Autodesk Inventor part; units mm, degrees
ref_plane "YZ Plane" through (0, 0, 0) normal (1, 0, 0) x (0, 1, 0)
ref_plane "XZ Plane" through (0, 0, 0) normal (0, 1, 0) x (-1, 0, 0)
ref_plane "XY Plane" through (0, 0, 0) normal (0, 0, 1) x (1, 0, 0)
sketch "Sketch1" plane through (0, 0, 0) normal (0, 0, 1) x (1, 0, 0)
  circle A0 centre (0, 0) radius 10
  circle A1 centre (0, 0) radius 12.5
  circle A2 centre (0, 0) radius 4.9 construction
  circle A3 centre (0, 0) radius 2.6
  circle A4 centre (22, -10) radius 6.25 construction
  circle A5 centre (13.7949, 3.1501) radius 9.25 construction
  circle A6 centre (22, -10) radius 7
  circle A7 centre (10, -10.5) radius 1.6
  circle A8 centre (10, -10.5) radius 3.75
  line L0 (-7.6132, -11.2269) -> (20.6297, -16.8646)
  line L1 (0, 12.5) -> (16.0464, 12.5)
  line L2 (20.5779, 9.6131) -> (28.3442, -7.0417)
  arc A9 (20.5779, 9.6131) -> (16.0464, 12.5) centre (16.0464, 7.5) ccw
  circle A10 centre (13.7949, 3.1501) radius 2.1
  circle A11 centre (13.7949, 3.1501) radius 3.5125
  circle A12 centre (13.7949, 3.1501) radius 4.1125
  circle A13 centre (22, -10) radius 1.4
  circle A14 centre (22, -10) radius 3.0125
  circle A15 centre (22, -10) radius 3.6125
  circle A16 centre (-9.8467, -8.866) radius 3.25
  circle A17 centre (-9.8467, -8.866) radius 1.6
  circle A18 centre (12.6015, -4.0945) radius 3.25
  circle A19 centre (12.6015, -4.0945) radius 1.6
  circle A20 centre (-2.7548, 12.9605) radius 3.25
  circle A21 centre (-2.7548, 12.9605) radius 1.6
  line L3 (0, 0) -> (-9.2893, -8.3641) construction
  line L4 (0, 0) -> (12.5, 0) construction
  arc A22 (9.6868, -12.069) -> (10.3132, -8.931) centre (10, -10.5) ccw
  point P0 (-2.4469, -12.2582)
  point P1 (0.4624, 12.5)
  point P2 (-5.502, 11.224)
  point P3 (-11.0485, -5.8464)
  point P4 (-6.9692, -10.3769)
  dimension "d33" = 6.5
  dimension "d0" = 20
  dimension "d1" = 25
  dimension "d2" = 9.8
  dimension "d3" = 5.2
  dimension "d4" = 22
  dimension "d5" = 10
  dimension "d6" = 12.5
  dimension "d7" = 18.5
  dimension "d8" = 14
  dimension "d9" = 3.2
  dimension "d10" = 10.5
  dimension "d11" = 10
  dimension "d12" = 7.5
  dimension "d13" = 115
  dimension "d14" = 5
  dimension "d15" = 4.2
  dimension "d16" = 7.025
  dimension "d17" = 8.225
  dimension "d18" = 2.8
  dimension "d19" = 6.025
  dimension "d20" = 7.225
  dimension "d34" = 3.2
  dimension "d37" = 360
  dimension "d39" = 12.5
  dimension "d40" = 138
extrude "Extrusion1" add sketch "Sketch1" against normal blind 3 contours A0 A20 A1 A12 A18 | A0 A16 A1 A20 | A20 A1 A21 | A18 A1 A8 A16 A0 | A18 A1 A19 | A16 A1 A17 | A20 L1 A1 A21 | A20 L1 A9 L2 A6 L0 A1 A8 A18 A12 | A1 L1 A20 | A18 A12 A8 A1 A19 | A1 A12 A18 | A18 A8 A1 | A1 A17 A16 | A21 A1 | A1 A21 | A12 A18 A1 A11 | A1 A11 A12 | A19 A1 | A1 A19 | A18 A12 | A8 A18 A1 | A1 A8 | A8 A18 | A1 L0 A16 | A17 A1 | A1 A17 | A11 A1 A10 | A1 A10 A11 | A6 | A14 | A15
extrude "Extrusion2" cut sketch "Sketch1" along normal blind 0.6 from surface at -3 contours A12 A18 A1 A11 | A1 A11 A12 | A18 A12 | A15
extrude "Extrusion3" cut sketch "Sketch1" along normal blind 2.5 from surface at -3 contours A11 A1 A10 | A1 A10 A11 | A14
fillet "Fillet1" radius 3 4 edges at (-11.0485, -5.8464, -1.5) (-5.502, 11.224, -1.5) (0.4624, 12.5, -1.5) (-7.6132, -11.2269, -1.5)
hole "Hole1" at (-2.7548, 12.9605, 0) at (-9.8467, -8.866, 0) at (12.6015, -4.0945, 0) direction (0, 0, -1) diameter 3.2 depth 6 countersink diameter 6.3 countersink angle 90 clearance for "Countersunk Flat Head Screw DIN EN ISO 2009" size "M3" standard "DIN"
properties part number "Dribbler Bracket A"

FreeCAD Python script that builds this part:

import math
import FreeCAD as App
import Part
import Sketcher
from FreeCAD import Vector
Q = App.Units.Quantity


def edges_at(feature, points):
    """Names of the edges that pass closest to the given points."""
    edges = feature.Shape.Edges
    near = lambda p: min(range(len(edges)), key=lambda i: edges[i].distToShape(Part.Vertex(*p))[0])
    return sorted({f"Edge{near(p) + 1}" for p in points})

doc = App.newDocument("Part")
body = doc.addObject("PartDesign::Body", "Body")

# Sketch on XY plane
sketch1 = body.newObject("Sketcher::SketchObject", "Sketch")
sketch1.AttachmentSupport = (doc.getObject("XY_Plane"), [""])
sketch1.MapMode = "FlatFace"
sketch1.addGeometry(Part.LineSegment(Vector(16, 12.5, 0), Vector(0.5, 12.5, 0)), False)
sketch1.addGeometry(Part.ArcOfCircle(Part.Circle(Vector(-2.8, 13, 0), Vector(0, 0, 1), 3.2), math.radians(-8), math.radians(212)), False)
sketch1.addGeometry(Part.ArcOfCircle(Part.Circle(Vector(0, 0, 0), Vector(0, 0, 1), 12.5), math.radians(116), math.radians(208)), False)
sketch1.addGeometry(Part.ArcOfCircle(Part.Circle(Vector(-9.8, -8.9, 0), Vector(0, 0, 1), 3.2), math.radians(112), math.radians(313)), False)
sketch1.addGeometry(Part.LineSegment(Vector(-7.6, -11.2, 0), Vector(20.6, -16.9, 0)), False)
sketch1.addGeometry(Part.ArcOfCircle(Part.Circle(Vector(22, -10, 0), Vector(0, 0, 1), 7), math.radians(-101), math.radians(25)), False)
sketch1.addGeometry(Part.LineSegment(Vector(28.3, -7, 0), Vector(20.6, 9.6, 0)), False)
sketch1.addGeometry(Part.ArcOfCircle(Part.Circle(Vector(16, 7.5, 0), Vector(0, 0, 1), 5), math.radians(25), math.radians(90)), False)
sketch1.addGeometry(Part.Circle(Vector(0, 0, 0), Vector(0, 0, 1), 10), False)
sketch1.addGeometry(Part.Circle(Vector(10, -10.5, 0), Vector(0, 0, 1), 1.6), False)
sketch1.addGeometry(Part.Circle(Vector(13.8, 3.2, 0), Vector(0, 0, 1), 2.1), False)
sketch1.addGeometry(Part.Circle(Vector(22, -10, 0), Vector(0, 0, 1), 1.4), False)
sketch1.addConstraint(Sketcher.Constraint("Coincident", 0, 2, 1, 1))
sketch1.addConstraint(Sketcher.Constraint("Coincident", 1, 2, 2, 1))
sketch1.addConstraint(Sketcher.Constraint("Coincident", 2, 2, 3, 1))
sketch1.addConstraint(Sketcher.Constraint("Coincident", 3, 2, 4, 1))
sketch1.addConstraint(Sketcher.Constraint("Tangent", 4, 2, 5, 1))
sketch1.addConstraint(Sketcher.Constraint("Tangent", 5, 2, 6, 1))
sketch1.addConstraint(Sketcher.Constraint("Tangent", 6, 2, 7, 1))
sketch1.addConstraint(Sketcher.Constraint("Tangent", 7, 2, 0, 1))
sketch1.addConstraint(Sketcher.Constraint("Horizontal", 0))
sketch1.addConstraint(Sketcher.Constraint("Coincident", 2, 3, -1, 1))
sketch1.addConstraint(Sketcher.Constraint("Coincident", 8, 3, -1, 1))
sketch1.addConstraint(Sketcher.Constraint("Coincident", 11, 3, 5, 3))
sketch1.addConstraint(Sketcher.Constraint("Equal", 1, 3))
sketch1.addConstraint(Sketcher.Constraint("Diameter", 8, 20.0))
sketch1.addConstraint(Sketcher.Constraint("Radius", 5, 7.0))
sketch1.addConstraint(Sketcher.Constraint("Radius", 7, 5.0))
sketch1.addConstraint(Sketcher.Constraint("Diameter", 9, 3.2))
sketch1.addConstraint(Sketcher.Constraint("Diameter", 10, 4.2))
sketch1.addConstraint(Sketcher.Constraint("Diameter", 11, 2.8))
sketch1.addConstraint(Sketcher.Constraint("Radius", 2, 12.5))
sketch1.addConstraint(Sketcher.Constraint("Angle", 6, Q("115 deg")))
sketch1.addConstraint(Sketcher.Constraint("Radius", 1, 3.25))
sketch1.addConstraint(Sketcher.Constraint("DistanceX", -1, 1, 5, 3, 22.0))
sketch1.addConstraint(Sketcher.Constraint("DistanceY", 5, 3, -1, 1, 10.0))
sketch1.addConstraint(Sketcher.Constraint("DistanceX", -1, 1, 9, 3, 10.0))
sketch1.addConstraint(Sketcher.Constraint("DistanceY", -1, 1, 7, 3, 7.5))
sketch1.addConstraint(Sketcher.Constraint("DistanceY", 9, 3, -1, 1, 10.5))
sketch1.addConstraint(Sketcher.Constraint("Distance", 4, 28.8))
sketch1.addConstraint(Sketcher.Constraint("DistanceX", 0, 2, 0, 1, 15.584))
sketch1.addConstraint(Sketcher.Constraint("DistanceY", -1, 1, 10, 3, 3.15))
sketch1.addConstraint(Sketcher.Constraint("DistanceY", 3, 3, 1, 2, 20.09))
sketch1.addConstraint(Sketcher.Constraint("DistanceY", 3, 3, -1, 1, 8.866))
sketch1.addConstraint(Sketcher.Constraint("DistanceX", -1, 1, 10, 3, 13.795))
sketch1.addConstraint(Sketcher.Constraint("DistanceY", 3, 2, -1, 1, 11.227))
pad1 = body.newObject("PartDesign::Pad", "Pad")
pad1.Profile = sketch1
pad1.Length = 3
pad1.Reversed = True

# Sketch on XY plane
sketch2 = body.newObject("Sketcher::SketchObject", "Sketch001")
sketch2.AttachmentSupport = (doc.getObject("XY_Plane"), [""])
sketch2.MapMode = "FlatFace"
sketch2.AttachmentOffset = App.Placement(Vector(0, 0, -3), App.Rotation())
sketch2.addGeometry(Part.Circle(Vector(13.8, 3.2, 0), Vector(0, 0, 1), 4.1), False)
sketch2.addGeometry(Part.Circle(Vector(13.8, 3.2, 0), Vector(0, 0, 1), 3.5), False)
sketch2.addGeometry(Part.Circle(Vector(22, -10, 0), Vector(0, 0, 1), 3.6), False)
sketch2.addGeometry(Part.Circle(Vector(22, -10, 0), Vector(0, 0, 1), 3), False)
sketch2.addConstraint(Sketcher.Constraint("Coincident", 1, 3, 0, 3))
sketch2.addConstraint(Sketcher.Constraint("Coincident", 3, 3, 2, 3))
sketch2.addConstraint(Sketcher.Constraint("Diameter", 0, 8.225))
sketch2.addConstraint(Sketcher.Constraint("Diameter", 1, 7.025))
sketch2.addConstraint(Sketcher.Constraint("Diameter", 2, 7.225))
sketch2.addConstraint(Sketcher.Constraint("Diameter", 3, 6.025))
sketch2.addConstraint(Sketcher.Constraint("DistanceX", -1, 1, 2, 3, 22.0))
sketch2.addConstraint(Sketcher.Constraint("DistanceY", 2, 3, -1, 1, 10.0))
sketch2.addConstraint(Sketcher.Constraint("DistanceY", -1, 1, 0, 3, 3.15))
sketch2.addConstraint(Sketcher.Constraint("DistanceX", -1, 1, 0, 3, 13.795))
pocket1 = body.newObject("PartDesign::Pocket", "Pocket")
pocket1.Profile = sketch2
pocket1.Length = 0.6
pocket1.Reversed = True

# Sketch on XY plane
sketch3 = body.newObject("Sketcher::SketchObject", "Sketch002")
sketch3.AttachmentSupport = (doc.getObject("XY_Plane"), [""])
sketch3.MapMode = "FlatFace"
sketch3.AttachmentOffset = App.Placement(Vector(0, 0, -3), App.Rotation())
sketch3.addGeometry(Part.Circle(Vector(13.8, 3.2, 0), Vector(0, 0, 1), 3.5), False)
sketch3.addGeometry(Part.Circle(Vector(13.8, 3.2, 0), Vector(0, 0, 1), 2.1), False)
sketch3.addGeometry(Part.Circle(Vector(22, -10, 0), Vector(0, 0, 1), 3), False)
sketch3.addGeometry(Part.Circle(Vector(22, -10, 0), Vector(0, 0, 1), 1.4), False)
sketch3.addConstraint(Sketcher.Constraint("Coincident", 1, 3, 0, 3))
sketch3.addConstraint(Sketcher.Constraint("Coincident", 3, 3, 2, 3))
sketch3.addConstraint(Sketcher.Constraint("Diameter", 1, 4.2))
sketch3.addConstraint(Sketcher.Constraint("Diameter", 3, 2.8))
sketch3.addConstraint(Sketcher.Constraint("Diameter", 0, 7.025))
sketch3.addConstraint(Sketcher.Constraint("Diameter", 2, 6.025))
sketch3.addConstraint(Sketcher.Constraint("DistanceX", -1, 1, 2, 3, 22.0))
sketch3.addConstraint(Sketcher.Constraint("DistanceY", 2, 3, -1, 1, 10.0))
sketch3.addConstraint(Sketcher.Constraint("DistanceY", -1, 1, 0, 3, 3.15))
sketch3.addConstraint(Sketcher.Constraint("DistanceX", -1, 1, 0, 3, 13.795))
pocket2 = body.newObject("PartDesign::Pocket", "Pocket001")
pocket2.Profile = sketch3
pocket2.Length = 2.5
pocket2.Reversed = True
doc.recompute()

fillet = body.newObject("PartDesign::Fillet", "Fillet")
fillet.Base = (pocket2, edges_at(pocket2, [
    (-11.049, -5.846, -1.5),
    (-5.502, 11.224, -1.5),
    (0.462, 12.5, -1.5),
    (-7.613, -11.227, -1.5),
]))
fillet.Radius = 3

# Sketch on XY plane
sketch4 = body.newObject("Sketcher::SketchObject", "Sketch003")
sketch4.AttachmentSupport = (doc.getObject("XY_Plane"), [""])
sketch4.MapMode = "FlatFace"
sketch4.addGeometry(Part.Circle(Vector(-2.8, 13, 0), Vector(0, 0, 1), 1.6), False)
sketch4.addGeometry(Part.Circle(Vector(-9.8, -8.9, 0), Vector(0, 0, 1), 1.6), False)
sketch4.addGeometry(Part.Circle(Vector(12.6, -4.1, 0), Vector(0, 0, 1), 1.6), False)
sketch4.addConstraint(Sketcher.Constraint("Equal", 0, 1))
sketch4.addConstraint(Sketcher.Constraint("Equal", 1, 2))
sketch4.addConstraint(Sketcher.Constraint("Diameter", 0, 3.2))
sketch4.addConstraint(Sketcher.Constraint("DistanceY", 1, 3, -1, 1, 8.866))
sketch4.addConstraint(Sketcher.Constraint("DistanceX", 1, 3, 0, 3, 7.092))
sketch4.addConstraint(Sketcher.Constraint("DistanceY", 2, 3, 0, 3, 17.055))
sketch4.addConstraint(Sketcher.Constraint("DistanceX", 0, 3, -1, 1, 2.7548))
sketch4.addConstraint(Sketcher.Constraint("DistanceY", -1, 1, 0, 3, 12.9605))
sketch4.addConstraint(Sketcher.Constraint("DistanceX", -1, 1, 2, 3, 12.6015))
doc.recompute()
hole = body.newObject("PartDesign::Hole", "Hole")
hole.Profile = sketch4
hole.ThreadType = "None"
hole.Diameter = 3.2
hole.DepthType = "Dimension"
hole.Depth = 6
hole.DrillPoint = "Flat"
hole.HoleCutType = "Countersink"
hole.HoleCutDiameter = 6.3
hole.HoleCutCountersinkAngle = 90

doc.recompute()
